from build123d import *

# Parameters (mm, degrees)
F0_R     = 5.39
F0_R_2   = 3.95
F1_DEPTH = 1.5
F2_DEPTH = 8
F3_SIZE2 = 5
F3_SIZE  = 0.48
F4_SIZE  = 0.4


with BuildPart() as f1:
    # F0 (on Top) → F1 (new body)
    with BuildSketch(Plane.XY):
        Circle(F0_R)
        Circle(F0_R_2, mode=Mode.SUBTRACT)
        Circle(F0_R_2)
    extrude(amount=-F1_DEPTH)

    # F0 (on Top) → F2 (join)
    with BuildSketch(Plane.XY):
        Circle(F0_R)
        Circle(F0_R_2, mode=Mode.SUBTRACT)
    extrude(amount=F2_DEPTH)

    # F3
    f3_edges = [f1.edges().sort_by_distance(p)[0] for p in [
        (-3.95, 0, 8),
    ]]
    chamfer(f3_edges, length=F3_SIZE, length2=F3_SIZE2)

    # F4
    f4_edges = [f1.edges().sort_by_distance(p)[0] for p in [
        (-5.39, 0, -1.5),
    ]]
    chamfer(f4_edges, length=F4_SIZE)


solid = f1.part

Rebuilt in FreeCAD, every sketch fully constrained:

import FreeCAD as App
import Part
import Sketcher
Q = App.Units.Quantity


def edges_at(feature, points):
    """Names of the edges that pass closest to the given points."""
    edges = feature.Shape.Edges
    near = lambda p: min(range(len(edges)), key=lambda i: edges[i].distToShape(Part.Vertex(*p))[0])
    return sorted({f"Edge{near(p) + 1}" for p in points})

doc = App.newDocument("Part")
body = doc.addObject("PartDesign::Body", "Body")

# Sketch on XY plane
sketch1 = body.newObject("Sketcher::SketchObject", "Sketch")
sketch1.AttachmentSupport = (doc.getObject("XY_Plane"), [""])
sketch1.MapMode = "FlatFace"
sketch1.addGeometry(Part.Circle(App.Vector(0, 0, 0), App.Vector(0, 0, 1), 5.39), False)
sketch1.addConstraint([
    Sketcher.Constraint("Coincident", 0, 3, -1, 1),
    Sketcher.Constraint("Diameter", 0, Q("10.78 mm")),
])
pad1 = body.newObject("PartDesign::Pad", "Pad")
pad1.Profile = sketch1
pad1.Length = 1.5
pad1.Reversed = True

# Sketch on XY plane
sketch2 = body.newObject("Sketcher::SketchObject", "Sketch001")
sketch2.AttachmentSupport = (doc.getObject("XY_Plane"), [""])
sketch2.MapMode = "FlatFace"
sketch2.addGeometry([
    Part.Circle(App.Vector(0, 0, 0), App.Vector(0, 0, 1), 5.39),
    Part.Circle(App.Vector(0, 0, 0), App.Vector(0, 0, 1), 3.95),
], False)
sketch2.addConstraint([
    Sketcher.Constraint("Coincident", 0, 3, -1, 1),
    Sketcher.Constraint("Coincident", 1, 3, -1, 1),
    Sketcher.Constraint("Diameter", 1, Q("7.9 mm")),
    Sketcher.Constraint("Diameter", 0, Q("10.78 mm")),
])
pad2 = body.newObject("PartDesign::Pad", "Pad001")
pad2.Profile = sketch2
pad2.Length = 8
doc.recompute()

chamfer = body.newObject("PartDesign::Chamfer", "Chamfer")
chamfer.Base = (pad2, edges_at(pad2, [(-3.95, 0, 8)]))
chamfer.ChamferType = "Two distances"
chamfer.Size = 0.48
chamfer.Size2 = 5
doc.recompute()

chamfer2 = body.newObject("PartDesign::Chamfer", "Chamfer001")
chamfer2.Base = (chamfer, edges_at(chamfer, [(-5.39, 0, -1.5)]))
chamfer2.Size = 0.4

doc.recompute()
